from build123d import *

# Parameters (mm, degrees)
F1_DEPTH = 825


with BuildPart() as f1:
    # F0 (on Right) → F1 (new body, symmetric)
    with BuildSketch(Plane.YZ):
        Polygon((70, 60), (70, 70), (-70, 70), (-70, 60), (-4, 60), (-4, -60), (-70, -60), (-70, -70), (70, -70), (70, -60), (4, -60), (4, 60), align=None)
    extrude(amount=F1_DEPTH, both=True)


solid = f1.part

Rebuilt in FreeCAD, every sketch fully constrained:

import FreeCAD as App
import Part
import Sketcher
from FreeCAD import Vector


def add_polygon(sketch, points):
    """Adds a closed chain of lines whose ends are joined by coincident constraints."""
    first, n = sketch.GeometryCount, len(points)
    for a, b in zip(points, points[1:] + points[:1]):
        sketch.addGeometry(Part.LineSegment(App.Vector(*a, 0), App.Vector(*b, 0)), False)
    for i in range(n):
        sketch.addConstraint(Sketcher.Constraint("Coincident", first + i, 2, first + (i + 1) % n, 1))

doc = App.newDocument("Part")
body = doc.addObject("PartDesign::Body", "Body")

# Sketch on YZ plane
sketch1 = body.newObject("Sketcher::SketchObject", "Sketch")
sketch1.AttachmentSupport = (doc.getObject("YZ_Plane"), [""])
sketch1.MapMode = "FlatFace"
add_polygon(sketch1, [(70, 60), (70, 70), (-70, 70), (-70, 60), (-4, 60), (-4, -60), (-70, -60), (-70, -70), (70, -70), (70, -60), (4, -60), (4, 60)])  # lines 0-11
sketch1.addConstraint(Sketcher.Constraint("Vertical", 0))
sketch1.addConstraint(Sketcher.Constraint("Horizontal", 1))
sketch1.addConstraint(Sketcher.Constraint("Vertical", 2))
sketch1.addConstraint(Sketcher.Constraint("Horizontal", 3))
sketch1.addConstraint(Sketcher.Constraint("Vertical", 4))
sketch1.addConstraint(Sketcher.Constraint("Horizontal", 5))
sketch1.addConstraint(Sketcher.Constraint("Vertical", 6))
sketch1.addConstraint(Sketcher.Constraint("Horizontal", 7))
sketch1.addConstraint(Sketcher.Constraint("Vertical", 8))
sketch1.addConstraint(Sketcher.Constraint("Horizontal", 9))
sketch1.addConstraint(Sketcher.Constraint("Vertical", 10))
sketch1.addConstraint(Sketcher.Constraint("Horizontal", 11))
sketch1.addConstraint(Sketcher.Constraint("Symmetric", 0, 2, 6, 2, -1, 1))
sketch1.addConstraint(Sketcher.Constraint("Symmetric", 2, 2, 8, 2, -1, 1))
sketch1.addConstraint(Sketcher.Constraint("Symmetric", 4, 2, 10, 2, -1, 1))
sketch1.addConstraint(Sketcher.Constraint("Symmetric", 5, 2, 8, 2, -2))
sketch1.addConstraint(Sketcher.Constraint("DistanceX", 1, 2, 1, 1, 140.0))
sketch1.addConstraint(Sketcher.Constraint("DistanceX", 3, 1, 3, 2, 66.0))
sketch1.addConstraint(Sketcher.Constraint("DistanceY", 0, 1, 0, 2, 10.0))
sketch1.addConstraint(Sketcher.Constraint("DistanceY", 4, 2, 4, 1, 120.0))
pad1 = body.newObject("PartDesign::Pad", "Pad")
pad1.Profile = sketch1
pad1.Length = 1650
pad1.Midplane = True

doc.recompute()
